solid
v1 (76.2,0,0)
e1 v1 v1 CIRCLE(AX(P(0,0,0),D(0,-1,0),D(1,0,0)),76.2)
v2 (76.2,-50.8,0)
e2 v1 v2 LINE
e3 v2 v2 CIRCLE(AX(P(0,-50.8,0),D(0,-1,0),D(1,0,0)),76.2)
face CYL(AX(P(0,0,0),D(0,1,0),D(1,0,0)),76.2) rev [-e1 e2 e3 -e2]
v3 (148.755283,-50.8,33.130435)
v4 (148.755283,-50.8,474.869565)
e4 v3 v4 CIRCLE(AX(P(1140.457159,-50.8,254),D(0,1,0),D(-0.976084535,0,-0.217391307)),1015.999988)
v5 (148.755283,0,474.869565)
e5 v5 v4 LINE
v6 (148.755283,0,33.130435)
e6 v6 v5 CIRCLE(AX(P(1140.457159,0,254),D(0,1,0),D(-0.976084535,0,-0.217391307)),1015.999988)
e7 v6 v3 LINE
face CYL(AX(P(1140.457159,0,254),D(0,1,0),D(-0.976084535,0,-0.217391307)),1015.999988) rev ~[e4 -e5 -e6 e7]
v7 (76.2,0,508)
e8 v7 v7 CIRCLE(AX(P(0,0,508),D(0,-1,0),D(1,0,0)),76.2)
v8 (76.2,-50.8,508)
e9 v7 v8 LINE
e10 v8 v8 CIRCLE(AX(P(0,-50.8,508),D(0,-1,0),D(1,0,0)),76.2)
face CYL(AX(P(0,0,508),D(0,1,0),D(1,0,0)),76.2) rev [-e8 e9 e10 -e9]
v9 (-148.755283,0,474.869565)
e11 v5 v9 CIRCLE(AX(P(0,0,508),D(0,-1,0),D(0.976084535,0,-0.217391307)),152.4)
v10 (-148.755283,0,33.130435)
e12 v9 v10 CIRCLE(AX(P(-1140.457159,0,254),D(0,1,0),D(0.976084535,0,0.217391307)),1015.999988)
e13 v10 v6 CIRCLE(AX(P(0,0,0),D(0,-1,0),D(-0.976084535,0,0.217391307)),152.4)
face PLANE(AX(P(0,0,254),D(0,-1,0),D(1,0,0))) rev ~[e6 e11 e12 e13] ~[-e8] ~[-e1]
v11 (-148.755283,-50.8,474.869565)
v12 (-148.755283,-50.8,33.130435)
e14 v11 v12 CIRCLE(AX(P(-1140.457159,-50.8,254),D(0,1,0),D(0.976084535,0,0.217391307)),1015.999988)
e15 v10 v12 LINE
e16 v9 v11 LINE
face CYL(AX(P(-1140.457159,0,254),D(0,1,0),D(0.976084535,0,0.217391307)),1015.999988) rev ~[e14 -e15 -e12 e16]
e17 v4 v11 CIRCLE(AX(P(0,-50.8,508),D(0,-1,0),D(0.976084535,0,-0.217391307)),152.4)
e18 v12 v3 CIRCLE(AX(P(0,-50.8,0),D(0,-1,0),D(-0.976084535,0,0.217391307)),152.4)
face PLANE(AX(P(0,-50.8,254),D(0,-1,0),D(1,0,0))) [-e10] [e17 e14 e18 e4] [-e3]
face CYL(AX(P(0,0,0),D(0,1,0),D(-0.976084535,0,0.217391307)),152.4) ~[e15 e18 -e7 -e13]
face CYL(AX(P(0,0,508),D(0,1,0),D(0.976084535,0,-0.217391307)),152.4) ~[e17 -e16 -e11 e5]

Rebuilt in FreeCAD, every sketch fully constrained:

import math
import FreeCAD as App
import Part
import Sketcher
Q = App.Units.Quantity

doc = App.newDocument("Part")
params = doc.addObject("Spreadsheet::Sheet", "Params")
for row, (alias, value) in enumerate([
    ("sketch1_diameter", "6 in"),
    ("sketch1_radius", "6 in"),
    ("pad1_length", "2 in"),
], start=1):
    params.set(f"A{row}", alias)
    params.set(f"B{row}", "=" + value)
    params.setAlias(f"B{row}", alias)

body = doc.addObject("PartDesign::Body", "Body")

# Sketch on XZ plane
sketch1 = doc.addObject("Sketcher::SketchObject", "Sketch")
body.addObject(sketch1)
sketch1.AttachmentSupport = (doc.XZ_Plane, [""])
sketch1.MapMode = "FlatFace"
sketch1.addGeometry([
    Part.ArcOfCircle(Part.Circle(App.Vector(-1140.457159, 254, 0), App.Vector(0, 0, 1), 1015.999988), math.radians(-12.555858), math.radians(12.555858)),  # 0
    Part.ArcOfCircle(Part.Circle(App.Vector(0, 0, 0), App.Vector(0, 0, 1), 152.4), math.radians(167.444142), math.radians(372.555858)),  # 1
    Part.ArcOfCircle(Part.Circle(App.Vector(1140.457159, 254, 0), App.Vector(0, 0, 1), 1015.999988), math.radians(167.444142), math.radians(192.555858)),  # 2
    Part.ArcOfCircle(Part.Circle(App.Vector(0, 508, 0), App.Vector(0, 0, 1), 152.4), math.radians(-12.555858), math.radians(192.555858)),  # 3
    Part.Circle(App.Vector(0, 0, 0), App.Vector(0, 0, 1), 76.2),  # 4
    Part.Circle(App.Vector(0, 508, 0), App.Vector(0, 0, 1), 76.2),  # 5
], False)
sketch1.addConstraint([
    Sketcher.Constraint("Tangent", 0, 1, 1, 1),
    Sketcher.Constraint("Tangent", 1, 2, 2, 2),
    Sketcher.Constraint("Tangent", 2, 1, 3, 1),
    Sketcher.Constraint("Tangent", 3, 2, 0, 2),
    Sketcher.Constraint("Coincident", 1, 3, -1, 1),
    Sketcher.Constraint("Coincident", 4, 3, -1, 1),
    Sketcher.Constraint("Coincident", 5, 3, 3, 3),
    Sketcher.Constraint("Equal", 0, 2),
    Sketcher.Constraint("Equal", 1, 3),
    Sketcher.Constraint("Equal", 4, 5),
    Sketcher.Constraint("PointOnObject", 3, 3, -2),
    Sketcher.Constraint("Diameter", 4, Q("6 in")),
    Sketcher.Constraint("Radius", 1, Q("6 in")),
    Sketcher.Constraint("DistanceY", -1, 1, 0, 3, Q("10 in")),
    Sketcher.Constraint("Radius", 0, Q("1015.999988 mm")),
])
sketch1.setExpression("Constraints[11]", "Params.sketch1_diameter")
sketch1.setExpression("Constraints[12]", "Params.sketch1_radius")
pad1 = doc.addObject("PartDesign::Pad", "Pad")
body.addObject(pad1)
pad1.Profile = sketch1
pad1.setExpression("Length", "Params.pad1_length")

doc.recompute()
